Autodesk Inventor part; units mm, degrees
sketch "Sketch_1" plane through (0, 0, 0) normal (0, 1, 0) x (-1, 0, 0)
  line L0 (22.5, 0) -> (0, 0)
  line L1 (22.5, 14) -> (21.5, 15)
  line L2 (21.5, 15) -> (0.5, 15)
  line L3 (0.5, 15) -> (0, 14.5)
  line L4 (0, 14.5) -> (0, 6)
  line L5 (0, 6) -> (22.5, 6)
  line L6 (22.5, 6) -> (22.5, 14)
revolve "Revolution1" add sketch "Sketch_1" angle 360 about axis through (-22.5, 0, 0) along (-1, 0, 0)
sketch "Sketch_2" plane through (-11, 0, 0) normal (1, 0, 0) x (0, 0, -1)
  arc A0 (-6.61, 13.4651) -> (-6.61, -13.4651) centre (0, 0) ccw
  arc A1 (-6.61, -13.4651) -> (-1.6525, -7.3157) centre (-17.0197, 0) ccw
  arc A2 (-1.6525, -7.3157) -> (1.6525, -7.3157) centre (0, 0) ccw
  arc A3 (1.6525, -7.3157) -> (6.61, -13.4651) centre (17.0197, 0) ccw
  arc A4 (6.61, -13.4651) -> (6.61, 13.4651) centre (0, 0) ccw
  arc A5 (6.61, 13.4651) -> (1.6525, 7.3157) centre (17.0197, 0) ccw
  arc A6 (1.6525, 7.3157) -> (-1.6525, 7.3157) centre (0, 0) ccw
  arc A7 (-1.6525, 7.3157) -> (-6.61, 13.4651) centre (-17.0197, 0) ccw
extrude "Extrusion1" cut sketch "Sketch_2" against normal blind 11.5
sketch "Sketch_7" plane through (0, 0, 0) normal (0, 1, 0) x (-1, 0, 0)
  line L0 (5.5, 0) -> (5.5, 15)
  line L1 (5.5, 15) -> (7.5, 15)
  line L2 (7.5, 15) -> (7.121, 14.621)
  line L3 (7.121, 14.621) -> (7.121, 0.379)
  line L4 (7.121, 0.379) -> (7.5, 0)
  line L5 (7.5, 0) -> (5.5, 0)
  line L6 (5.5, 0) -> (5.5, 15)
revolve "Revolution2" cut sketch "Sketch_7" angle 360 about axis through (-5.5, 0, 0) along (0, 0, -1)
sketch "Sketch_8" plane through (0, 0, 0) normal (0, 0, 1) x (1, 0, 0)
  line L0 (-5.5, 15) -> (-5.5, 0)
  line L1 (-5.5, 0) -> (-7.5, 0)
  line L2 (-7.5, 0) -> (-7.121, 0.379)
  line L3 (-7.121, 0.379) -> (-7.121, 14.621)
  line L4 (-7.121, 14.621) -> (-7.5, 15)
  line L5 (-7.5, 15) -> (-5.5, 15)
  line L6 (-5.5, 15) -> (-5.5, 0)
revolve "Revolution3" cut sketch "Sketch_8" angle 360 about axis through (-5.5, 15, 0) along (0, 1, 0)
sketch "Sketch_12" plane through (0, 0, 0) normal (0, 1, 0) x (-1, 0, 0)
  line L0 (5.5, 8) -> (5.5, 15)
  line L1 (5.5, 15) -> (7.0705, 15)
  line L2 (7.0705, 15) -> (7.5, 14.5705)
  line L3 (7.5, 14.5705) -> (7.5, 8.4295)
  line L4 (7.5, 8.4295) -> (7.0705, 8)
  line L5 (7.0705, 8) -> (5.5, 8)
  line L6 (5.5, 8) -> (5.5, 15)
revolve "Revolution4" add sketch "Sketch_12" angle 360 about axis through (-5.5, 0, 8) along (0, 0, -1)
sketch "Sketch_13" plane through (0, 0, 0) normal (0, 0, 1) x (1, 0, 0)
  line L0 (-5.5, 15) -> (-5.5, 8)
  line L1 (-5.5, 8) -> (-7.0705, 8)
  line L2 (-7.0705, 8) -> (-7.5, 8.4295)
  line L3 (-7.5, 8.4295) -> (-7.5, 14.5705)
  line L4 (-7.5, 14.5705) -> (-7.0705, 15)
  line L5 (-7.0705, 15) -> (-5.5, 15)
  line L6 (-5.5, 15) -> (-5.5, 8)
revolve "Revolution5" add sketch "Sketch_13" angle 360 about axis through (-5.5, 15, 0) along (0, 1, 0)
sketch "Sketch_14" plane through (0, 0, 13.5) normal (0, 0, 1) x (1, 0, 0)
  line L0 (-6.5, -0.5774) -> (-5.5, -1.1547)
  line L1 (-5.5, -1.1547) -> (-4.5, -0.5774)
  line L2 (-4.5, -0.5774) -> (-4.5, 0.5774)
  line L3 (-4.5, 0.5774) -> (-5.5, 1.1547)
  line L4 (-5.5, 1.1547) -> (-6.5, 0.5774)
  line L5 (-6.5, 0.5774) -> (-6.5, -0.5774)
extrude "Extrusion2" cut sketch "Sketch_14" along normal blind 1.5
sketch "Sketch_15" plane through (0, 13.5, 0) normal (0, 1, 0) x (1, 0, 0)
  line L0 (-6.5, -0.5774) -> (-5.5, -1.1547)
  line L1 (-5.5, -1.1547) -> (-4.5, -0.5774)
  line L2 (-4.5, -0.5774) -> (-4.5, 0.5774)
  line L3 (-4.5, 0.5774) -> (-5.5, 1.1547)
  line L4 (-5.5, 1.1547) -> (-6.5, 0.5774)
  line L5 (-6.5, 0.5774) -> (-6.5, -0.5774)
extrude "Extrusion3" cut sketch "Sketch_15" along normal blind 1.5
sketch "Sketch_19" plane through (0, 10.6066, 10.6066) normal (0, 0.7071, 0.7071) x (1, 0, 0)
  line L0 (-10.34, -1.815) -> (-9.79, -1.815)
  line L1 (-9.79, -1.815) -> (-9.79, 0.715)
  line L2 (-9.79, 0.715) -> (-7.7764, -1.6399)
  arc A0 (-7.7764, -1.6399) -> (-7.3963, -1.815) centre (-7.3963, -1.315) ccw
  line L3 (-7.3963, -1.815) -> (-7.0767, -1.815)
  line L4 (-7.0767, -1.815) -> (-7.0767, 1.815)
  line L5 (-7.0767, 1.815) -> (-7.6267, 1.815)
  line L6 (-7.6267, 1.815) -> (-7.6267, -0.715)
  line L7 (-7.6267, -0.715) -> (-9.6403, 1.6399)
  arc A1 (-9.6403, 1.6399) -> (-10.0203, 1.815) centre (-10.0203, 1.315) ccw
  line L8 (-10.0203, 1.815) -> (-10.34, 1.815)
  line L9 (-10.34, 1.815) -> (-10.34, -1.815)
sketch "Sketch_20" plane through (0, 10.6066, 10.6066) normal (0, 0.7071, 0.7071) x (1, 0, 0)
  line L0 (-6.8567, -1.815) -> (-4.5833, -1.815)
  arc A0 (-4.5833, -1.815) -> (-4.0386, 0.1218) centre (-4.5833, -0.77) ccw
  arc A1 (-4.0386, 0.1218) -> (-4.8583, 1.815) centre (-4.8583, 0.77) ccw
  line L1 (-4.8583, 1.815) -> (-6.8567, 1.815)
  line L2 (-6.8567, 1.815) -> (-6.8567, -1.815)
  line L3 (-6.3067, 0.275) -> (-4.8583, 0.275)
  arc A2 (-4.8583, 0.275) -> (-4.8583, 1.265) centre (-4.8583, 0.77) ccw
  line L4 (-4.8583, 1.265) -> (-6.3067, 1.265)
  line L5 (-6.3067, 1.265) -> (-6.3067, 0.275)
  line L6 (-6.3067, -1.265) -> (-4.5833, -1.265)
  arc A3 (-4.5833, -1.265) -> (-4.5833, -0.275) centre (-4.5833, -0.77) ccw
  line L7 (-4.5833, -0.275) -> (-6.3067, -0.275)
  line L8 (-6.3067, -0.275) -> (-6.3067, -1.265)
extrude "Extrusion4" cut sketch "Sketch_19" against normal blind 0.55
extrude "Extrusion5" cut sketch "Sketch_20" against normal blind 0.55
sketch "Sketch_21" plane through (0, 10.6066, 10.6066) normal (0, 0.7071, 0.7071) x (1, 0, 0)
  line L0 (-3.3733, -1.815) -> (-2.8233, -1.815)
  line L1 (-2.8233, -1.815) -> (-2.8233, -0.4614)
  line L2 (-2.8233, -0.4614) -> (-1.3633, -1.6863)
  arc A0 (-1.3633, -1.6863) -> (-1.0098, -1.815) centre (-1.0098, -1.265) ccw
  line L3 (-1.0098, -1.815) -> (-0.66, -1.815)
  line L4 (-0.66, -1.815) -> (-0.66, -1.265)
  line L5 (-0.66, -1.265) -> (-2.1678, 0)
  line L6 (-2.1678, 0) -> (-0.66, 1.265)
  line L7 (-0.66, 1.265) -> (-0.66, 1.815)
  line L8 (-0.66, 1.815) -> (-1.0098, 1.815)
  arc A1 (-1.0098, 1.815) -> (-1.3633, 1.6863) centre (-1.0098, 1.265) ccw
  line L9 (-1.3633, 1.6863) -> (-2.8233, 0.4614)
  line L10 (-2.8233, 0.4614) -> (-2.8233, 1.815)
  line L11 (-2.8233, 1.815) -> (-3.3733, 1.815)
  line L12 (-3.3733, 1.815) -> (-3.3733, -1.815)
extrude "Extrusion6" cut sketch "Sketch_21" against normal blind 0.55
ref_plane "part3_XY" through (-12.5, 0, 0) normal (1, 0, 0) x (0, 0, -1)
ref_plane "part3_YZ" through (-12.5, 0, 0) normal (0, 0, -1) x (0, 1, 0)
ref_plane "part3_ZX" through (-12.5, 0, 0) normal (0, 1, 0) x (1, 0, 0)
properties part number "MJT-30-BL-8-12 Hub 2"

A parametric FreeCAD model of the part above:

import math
import FreeCAD as App
import Part
import Sketcher

V = App.Vector
Q = App.Units.Quantity


def add_polygon(sketch, points):
    """Adds a closed chain of lines whose ends are joined by coincident constraints."""
    first, n = sketch.GeometryCount, len(points)
    for a, b in zip(points, points[1:] + points[:1]):
        sketch.addGeometry(Part.LineSegment(App.Vector(*a, 0), App.Vector(*b, 0)), False)
    for i in range(n):
        sketch.addConstraint(Sketcher.Constraint("Coincident", first + i, 2, first + (i + 1) % n, 1))

doc = App.newDocument("Part")
body = doc.addObject("PartDesign::Body", "Body")

# Sketch on XZ plane
sketch1 = body.newObject("Sketcher::SketchObject", "Sketch")
sketch1.AttachmentSupport = (doc.getObject("XZ_Plane"), [""])
sketch1.MapMode = "FlatFace"
add_polygon(sketch1, [(-22.5, 6), (-22.5, 14), (-21.5, 15), (-0.5, 15), (0, 14.5), (0, 6)])  # lines 0-5
sketch1.addConstraint([
    Sketcher.Constraint("Vertical", 0),
    Sketcher.Constraint("Horizontal", 2),
    Sketcher.Constraint("Vertical", 4),
    Sketcher.Constraint("Horizontal", 5),
    Sketcher.Constraint("PointOnObject", 3, 2, -2),
    Sketcher.Constraint("Perpendicular", 1, 3),
    Sketcher.Constraint("DistanceX", 2, 1, 2, 2, 21.0),
    Sketcher.Constraint("DistanceY", 0, 1, 0, 2, 8.0),
    Sketcher.Constraint("Angle", 1, Q("45 deg")),
    Sketcher.Constraint("DistanceX", 5, 2, 5, 1, 22.5),
    Sketcher.Constraint("DistanceY", 4, 2, 4, 1, 8.5),
    Sketcher.Constraint("DistanceY", -1, 1, 0, 2, 14.0),
])
revolution = body.newObject("PartDesign::Revolution", "Revolution")
revolution.Profile = sketch1
revolution.ReferenceAxis = (sketch1, ["H_Axis"])
revolution.Angle = 360

# Sketch on YZ plane
sketch2 = body.newObject("Sketcher::SketchObject", "Sketch001")
sketch2.AttachmentSupport = (doc.getObject("YZ_Plane"), [""])
sketch2.MapMode = "FlatFace"
sketch2.AttachmentOffset = App.Placement(V(0, 0, -11), App.Rotation())
sketch2.addGeometry([
    Part.ArcOfCircle(Part.Circle(V(0, 17, 0), V(0, 0, 1), 17), math.radians(-65), math.radians(-38)),  # 0
    Part.ArcOfCircle(Part.Circle(V(0, 0, 0), V(0, 0, 1), 15), math.radians(26), math.radians(154)),  # 1
    Part.ArcOfCircle(Part.Circle(V(0, 17, 0), V(0, 0, 1), 17), math.radians(-142), math.radians(-115)),  # 2
    Part.ArcOfCircle(Part.Circle(V(0, 0, 0), V(0, 0, 1), 7.5), math.radians(167), math.radians(193)),  # 3
    Part.ArcOfCircle(Part.Circle(V(0, -17, 0), V(0, 0, 1), 17), math.radians(115), math.radians(142)),  # 4
    Part.ArcOfCircle(Part.Circle(V(0, 0, 0), V(0, 0, 1), 15), math.radians(-154), math.radians(-26)),  # 5
    Part.ArcOfCircle(Part.Circle(V(0, -17, 0), V(0, 0, 1), 17), math.radians(38), math.radians(65)),  # 6
    Part.ArcOfCircle(Part.Circle(V(0, 0, 0), V(0, 0, 1), 7.5), math.radians(-13), math.radians(13)),  # 7
], False)
sketch2.addConstraint([
    Sketcher.Constraint("Coincident", 0, 2, 1, 1),
    Sketcher.Constraint("Coincident", 1, 2, 2, 1),
    Sketcher.Constraint("Coincident", 2, 2, 3, 1),
    Sketcher.Constraint("Coincident", 3, 2, 4, 1),
    Sketcher.Constraint("Coincident", 4, 2, 5, 1),
    Sketcher.Constraint("Coincident", 5, 2, 6, 1),
    Sketcher.Constraint("Coincident", 6, 2, 7, 1),
    Sketcher.Constraint("Coincident", 7, 2, 0, 1),
    Sketcher.Constraint("Coincident", 1, 3, -1, 1),
    Sketcher.Constraint("Coincident", 3, 3, -1, 1),
    Sketcher.Constraint("Coincident", 5, 3, -1, 1),
    Sketcher.Constraint("Coincident", 7, 3, -1, 1),
    Sketcher.Constraint("Coincident", 2, 3, 0, 3),
    Sketcher.Constraint("Coincident", 6, 3, 4, 3),
    Sketcher.Constraint("Equal", 0, 2),
    Sketcher.Constraint("Equal", 2, 4),
    Sketcher.Constraint("Equal", 1, 5),
    Sketcher.Constraint("Equal", 4, 6),
    Sketcher.Constraint("Equal", 3, 7),
    Sketcher.Constraint("Symmetric", 0, 3, 4, 3, -1, 1),
    Sketcher.Constraint("PointOnObject", 0, 3, -2),
    Sketcher.Constraint("Radius", 1, 15.0),
    Sketcher.Constraint("Radius", 3, 7.5),
    Sketcher.Constraint("Radius", 0, 17.0197),
    Sketcher.Constraint("DistanceY", -1, 1, 0, 2, 6.61),
])
pocket1 = body.newObject("PartDesign::Pocket", "Pocket")
pocket1.Profile = sketch2
pocket1.Length = 11.5

# Sketch on XZ plane
sketch3 = body.newObject("Sketcher::SketchObject", "Sketch002")
sketch3.AttachmentSupport = (doc.getObject("XZ_Plane"), [""])
sketch3.MapMode = "FlatFace"
add_polygon(sketch3, [(-5.5, 15), (-5.5, 0), (-7.5, 0), (-7.1, 0.4), (-7.1, 14.6), (-7.5, 15)])  # lines 0-5
sketch3.addGeometry(Part.LineSegment(V(-5.5, 15, 0), V(-5.5, 0, 0)), True)  # axis
sketch3.addConstraint([
    Sketcher.Constraint("Vertical", 0),
    Sketcher.Constraint("Horizontal", 1),
    Sketcher.Constraint("Vertical", 3),
    Sketcher.Constraint("Horizontal", 5),
    Sketcher.Constraint("Vertical", 6),
    Sketcher.Constraint("Coincident", 6, 1, 5, 2),
    Sketcher.Constraint("PointOnObject", 0, 2, -1),
    Sketcher.Constraint("PointOnObject", 6, 2, -1),
    Sketcher.Constraint("Perpendicular", 2, 4),
    Sketcher.Constraint("Vertical", 1, 2, 4, 2),
    Sketcher.Constraint("Equal", 2, 4),
    Sketcher.Constraint("DistanceX", 1, 2, 1, 1, 2.0),
    Sketcher.Constraint("DistanceY", 0, 2, 0, 1, 15.0),
    Sketcher.Constraint("DistanceX", 0, 2, -1, 1, 5.5),
    Sketcher.Constraint("DistanceY", 3, 1, 3, 2, 14.242),
])
groove = body.newObject("PartDesign::Groove", "Groove")
groove.Profile = sketch3
groove.ReferenceAxis = (sketch3, ["Axis0"])
groove.Angle = 360

# Sketch on XY plane
sketch4 = body.newObject("Sketcher::SketchObject", "Sketch003")
sketch4.AttachmentSupport = (doc.getObject("XY_Plane"), [""])
sketch4.MapMode = "FlatFace"
add_polygon(sketch4, [(-5.5, 0), (-5.5, 15), (-7.5, 15), (-7.1, 14.6), (-7.1, 0.4), (-7.5, 0)])  # lines 0-5
sketch4.addGeometry(Part.LineSegment(V(-5.5, 0, 0), V(-5.5, 15, 0)), True)  # axis
sketch4.addConstraint([
    Sketcher.Constraint("Vertical", 0),
    Sketcher.Constraint("Horizontal", 1),
    Sketcher.Constraint("Vertical", 3),
    Sketcher.Constraint("Horizontal", 5),
    Sketcher.Constraint("Vertical", 6),
    Sketcher.Constraint("Coincident", 6, 1, 5, 2),
    Sketcher.Constraint("PointOnObject", 4, 2, -1),
    Sketcher.Constraint("Perpendicular", 2, 4),
    Sketcher.Constraint("Horizontal", 1, 2, 6, 2),
    Sketcher.Constraint("Vertical", 1, 2, 4, 2),
    Sketcher.Constraint("Equal", 2, 4),
    Sketcher.Constraint("DistanceX", 1, 2, 1, 1, 2.0),
    Sketcher.Constraint("DistanceY", 0, 1, 0, 2, 15.0),
    Sketcher.Constraint("DistanceX", 0, 2, -1, 1, 5.5),
    Sketcher.Constraint("DistanceY", 3, 2, 3, 1, 14.242),
])
groove2 = body.newObject("PartDesign::Groove", "Groove001")
groove2.Profile = sketch4
groove2.ReferenceAxis = (sketch4, ["Axis0"])
groove2.Angle = 360

# Sketch on XZ plane
sketch5 = body.newObject("Sketcher::SketchObject", "Sketch004")
sketch5.AttachmentSupport = (doc.getObject("XZ_Plane"), [""])
sketch5.MapMode = "FlatFace"
add_polygon(sketch5, [(-5.5, 15), (-5.5, 8), (-7.1, 8), (-7.5, 8.4), (-7.5, 14.6), (-7.1, 15)])  # lines 0-5
sketch5.addGeometry(Part.LineSegment(V(-5.5, 15, 0), V(-5.5, 8, 0)), True)  # axis
sketch5.addConstraint([
    Sketcher.Constraint("Vertical", 0),
    Sketcher.Constraint("Horizontal", 1),
    Sketcher.Constraint("Vertical", 3),
    Sketcher.Constraint("Horizontal", 5),
    Sketcher.Constraint("Vertical", 6),
    Sketcher.Constraint("Coincident", 6, 1, 5, 2),
    Sketcher.Constraint("Perpendicular", 2, 4),
    Sketcher.Constraint("Horizontal", 1, 2, 6, 2),
    Sketcher.Constraint("Vertical", 1, 2, 4, 2),
    Sketcher.Constraint("Equal", 2, 4),
    Sketcher.Constraint("DistanceY", 0, 2, 0, 1, 7.0),
    Sketcher.Constraint("DistanceY", -1, 1, 0, 2, 8.0),
    Sketcher.Constraint("DistanceX", 2, 2, 0, 2, 2.0),
    Sketcher.Constraint("DistanceX", 0, 2, -1, 1, 5.5),
    Sketcher.Constraint("DistanceY", 3, 1, 3, 2, 6.141),
])
revolution2 = body.newObject("PartDesign::Revolution", "Revolution001")
revolution2.Profile = sketch5
revolution2.ReferenceAxis = (sketch5, ["Axis0"])
revolution2.Angle = 360

# Sketch on XY plane
sketch6 = body.newObject("Sketcher::SketchObject", "Sketch005")
sketch6.AttachmentSupport = (doc.getObject("XY_Plane"), [""])
sketch6.MapMode = "FlatFace"
add_polygon(sketch6, [(-5.5, 8), (-5.5, 15), (-7.1, 15), (-7.5, 14.6), (-7.5, 8.4), (-7.1, 8)])  # lines 0-5
sketch6.addGeometry(Part.LineSegment(V(-5.5, 8, 0), V(-5.5, 15, 0)), True)  # axis
sketch6.addConstraint([
    Sketcher.Constraint("Vertical", 0),
    Sketcher.Constraint("Horizontal", 1),
    Sketcher.Constraint("Vertical", 3),
    Sketcher.Constraint("Horizontal", 5),
    Sketcher.Constraint("Vertical", 6),
    Sketcher.Constraint("Coincident", 6, 1, 5, 2),
    Sketcher.Constraint("Perpendicular", 2, 4),
    Sketcher.Constraint("Horizontal", 1, 2, 6, 2),
    Sketcher.Constraint("Vertical", 1, 2, 4, 2),
    Sketcher.Constraint("Equal", 2, 4),
    Sketcher.Constraint("DistanceY", 0, 1, 0, 2, 7.0),
    Sketcher.Constraint("DistanceY", -1, 1, 0, 2, 15.0),
    Sketcher.Constraint("DistanceX", 2, 2, 0, 2, 2.0),
    Sketcher.Constraint("DistanceX", 0, 2, -1, 1, 5.5),
    Sketcher.Constraint("DistanceY", 3, 2, 3, 1, 6.141),
])
revolution3 = body.newObject("PartDesign::Revolution", "Revolution002")
revolution3.Profile = sketch6
revolution3.ReferenceAxis = (sketch6, ["Axis0"])
revolution3.Angle = 360

# Sketch on XY plane
sketch7 = body.newObject("Sketcher::SketchObject", "Sketch006")
sketch7.AttachmentSupport = (doc.getObject("XY_Plane"), [""])
sketch7.MapMode = "FlatFace"
sketch7.AttachmentOffset = App.Placement(V(0, 0, 13.5), App.Rotation())
add_polygon(sketch7, [(-6.5, 0.6), (-6.5, -0.6), (-5.5, -1.2), (-4.5, -0.6), (-4.5, 0.6), (-5.5, 1.2)])  # lines 0-5
sketch7.addConstraint([
    Sketcher.Constraint("Vertical", 0),
    Sketcher.Constraint("Vertical", 3),
    Sketcher.Constraint("Symmetric", 1, 2, 4, 2, -1),
    Sketcher.Constraint("Parallel", 1, 4),
    Sketcher.Constraint("Parallel", 2, 5),
    Sketcher.Constraint("Horizontal", 0, 2, 2, 2),
    Sketcher.Constraint("Horizontal", 3, 2, 5, 2),
    Sketcher.Constraint("DistanceX", 0, 2, 1, 2, 1.0),
    Sketcher.Constraint("DistanceX", 0, 2, -1, 1, 6.5),
    Sketcher.Constraint("DistanceY", 0, 2, 0, 1, 1.1548),
    Sketcher.Constraint("DistanceY", 1, 2, 3, 2, 1.732),
])
pocket2 = body.newObject("PartDesign::Pocket", "Pocket001")
pocket2.Profile = sketch7
pocket2.Length = 1.5
pocket2.Reversed = True

# Sketch on XZ plane
sketch8 = body.newObject("Sketcher::SketchObject", "Sketch007")
sketch8.AttachmentSupport = (doc.getObject("XZ_Plane"), [""])
sketch8.MapMode = "FlatFace"
sketch8.AttachmentOffset = App.Placement(V(0, 0, -13.5), App.Rotation())
add_polygon(sketch8, [(-6.5, -0.6), (-6.5, 0.6), (-5.5, 1.2), (-4.5, 0.6), (-4.5, -0.6), (-5.5, -1.2)])  # lines 0-5
sketch8.addConstraint([
    Sketcher.Constraint("Vertical", 0),
    Sketcher.Constraint("Vertical", 3),
    Sketcher.Constraint("Symmetric", 1, 2, 4, 2, -1),
    Sketcher.Constraint("Parallel", 1, 4),
    Sketcher.Constraint("Parallel", 2, 5),
    Sketcher.Constraint("Horizontal", 0, 2, 2, 2),
    Sketcher.Constraint("Horizontal", 3, 2, 5, 2),
    Sketcher.Constraint("DistanceX", 0, 2, 1, 2, 1.0),
    Sketcher.Constraint("DistanceX", 0, 2, -1, 1, 6.5),
    Sketcher.Constraint("DistanceY", 0, 1, 0, 2, 1.1548),
    Sketcher.Constraint("DistanceY", 3, 2, 1, 2, 1.732),
])
pocket3 = body.newObject("PartDesign::Pocket", "Pocket002")
pocket3.Profile = sketch8
pocket3.Length = 1.5

# Sketch on an angled plane
sketch9 = body.newObject("Sketcher::SketchObject", "Sketch008")
sketch9.Placement = App.Placement(V(0, 10.6066, 10.6066), App.Rotation(V(1, 0, 0), V(0, 0.707106781, -0.707106781), V(0, 0.707106781, 0.707106781), "ZXY"))
sketch9.addGeometry([
    Part.LineSegment(V(-10.34, 1.81, 0), V(-10.34, -1.81, 0)),  # 0
    Part.LineSegment(V(-10.34, -1.81, 0), V(-9.79, -1.81, 0)),  # 1
    Part.LineSegment(V(-9.79, -1.81, 0), V(-9.79, 0.71, 0)),  # 2
    Part.LineSegment(V(-9.79, 0.71, 0), V(-7.78, -1.64, 0)),  # 3
    Part.ArcOfCircle(Part.Circle(V(-7.4, -1.31, 0), V(0, 0, 1), 0.5), math.radians(-139), math.radians(-90)),  # 4
    Part.LineSegment(V(-7.4, -1.81, 0), V(-7.08, -1.81, 0)),  # 5
    Part.LineSegment(V(-7.08, -1.81, 0), V(-7.08, 1.81, 0)),  # 6
    Part.LineSegment(V(-7.08, 1.81, 0), V(-7.63, 1.81, 0)),  # 7
    Part.LineSegment(V(-7.63, 1.81, 0), V(-7.63, -0.71, 0)),  # 8
    Part.LineSegment(V(-7.63, -0.71, 0), V(-9.64, 1.64, 0)),  # 9
    Part.ArcOfCircle(Part.Circle(V(-10.02, 1.31, 0), V(0, 0, 1), 0.5), math.radians(41), math.radians(90)),  # 10
    Part.LineSegment(V(-10.02, 1.81, 0), V(-10.34, 1.81, 0)),  # 11
], False)
sketch9.addConstraint([
    Sketcher.Constraint("Coincident", 0, 2, 1, 1),
    Sketcher.Constraint("Coincident", 1, 2, 2, 1),
    Sketcher.Constraint("Coincident", 2, 2, 3, 1),
    Sketcher.Constraint("Tangent", 3, 2, 4, 1),
    Sketcher.Constraint("Tangent", 4, 2, 5, 1),
    Sketcher.Constraint("Coincident", 5, 2, 6, 1),
    Sketcher.Constraint("Coincident", 6, 2, 7, 1),
    Sketcher.Constraint("Coincident", 7, 2, 8, 1),
    Sketcher.Constraint("Coincident", 8, 2, 9, 1),
    Sketcher.Constraint("Tangent", 9, 2, 10, 1),
    Sketcher.Constraint("Tangent", 10, 2, 11, 1),
    Sketcher.Constraint("Coincident", 11, 2, 0, 1),
    Sketcher.Constraint("Vertical", 0),
    Sketcher.Constraint("Horizontal", 1),
    Sketcher.Constraint("Vertical", 2),
    Sketcher.Constraint("Horizontal", 5),
    Sketcher.Constraint("Vertical", 6),
    Sketcher.Constraint("Horizontal", 7),
    Sketcher.Constraint("Vertical", 8),
    Sketcher.Constraint("Horizontal", 11),
    Sketcher.Constraint("Equal", 4, 10),
    Sketcher.Constraint("Parallel", 3, 9),
    Sketcher.Constraint("Horizontal", 1, 2, 4, 2),
    Sketcher.Constraint("Horizontal", 7, 2, 10, 2),
    Sketcher.Constraint("Equal", 1, 7),
    Sketcher.Constraint("Equal", 5, 11),
    Sketcher.Constraint("Radius", 4, 0.5),
    Sketcher.Constraint("DistanceX", 1, 1, 1, 2, 0.55),
    Sketcher.Constraint("DistanceY", 0, 2, 0, 1, 3.63),
    Sketcher.Constraint("DistanceY", 2, 1, 2, 2, 2.53),
    Sketcher.Constraint("DistanceX", 0, 2, -1, 1, 10.34),
    Sketcher.Constraint("DistanceY", 3, 2, -1, 1, 1.64),
    Sketcher.Constraint("DistanceY", -1, 1, 9, 2, 1.64),
    Sketcher.Constraint("DistanceX", 5, 1, 5, 2, 0.3196),
])
pocket4 = body.newObject("PartDesign::Pocket", "Pocket003")
pocket4.Profile = sketch9
pocket4.Length = 0.55

# Sketch on an angled plane
sketch10 = body.newObject("Sketcher::SketchObject", "Sketch009")
sketch10.Placement = App.Placement(V(0, 10.6066, 10.6066), App.Rotation(V(1, 0, 0), V(0, 0.707106781, -0.707106781), V(0, 0.707106781, 0.707106781), "ZXY"))
sketch10.addGeometry([
    Part.LineSegment(V(-6.86, 1.81, 0), V(-6.86, -1.81, 0)),  # 0
    Part.LineSegment(V(-6.86, -1.81, 0), V(-4.58, -1.81, 0)),  # 1
    Part.ArcOfCircle(Part.Circle(V(-4.58, -0.77, 0), V(0, 0, 1), 1.04), math.radians(-90), math.radians(59)),  # 2
    Part.ArcOfCircle(Part.Circle(V(-4.86, 0.77, 0), V(0, 0, 1), 1.05), math.radians(-38), math.radians(90)),  # 3
    Part.LineSegment(V(-4.86, 1.81, 0), V(-6.86, 1.81, 0)),  # 4
    Part.LineSegment(V(-4.58, -1.26, 0), V(-6.31, -1.26, 0)),  # 5
    Part.LineSegment(V(-6.31, -1.26, 0), V(-6.31, -0.28, 0)),  # 6
    Part.LineSegment(V(-6.31, -0.28, 0), V(-4.58, -0.28, 0)),  # 7
    Part.ArcOfCircle(Part.Circle(V(-4.58, -0.77, 0), V(0, 0, 1), 0.49), math.radians(-90), math.radians(90)),  # 8
    Part.LineSegment(V(-4.86, 0.28, 0), V(-6.31, 0.28, 0)),  # 9
    Part.LineSegment(V(-6.31, 0.28, 0), V(-6.31, 1.26, 0)),  # 10
    Part.LineSegment(V(-6.31, 1.26, 0), V(-4.86, 1.26, 0)),  # 11
    Part.ArcOfCircle(Part.Circle(V(-4.86, 0.77, 0), V(0, 0, 1), 0.49), math.radians(-90), math.radians(90)),  # 12
], False)
sketch10.addConstraint([
    Sketcher.Constraint("Coincident", 0, 2, 1, 1),
    Sketcher.Constraint("Tangent", 1, 2, 2, 1),
    Sketcher.Constraint("Coincident", 2, 2, 3, 1),
    Sketcher.Constraint("Tangent", 3, 2, 4, 1),
    Sketcher.Constraint("Coincident", 4, 2, 0, 1),
    Sketcher.Constraint("Coincident", 5, 2, 6, 1),
    Sketcher.Constraint("Coincident", 6, 2, 7, 1),
    Sketcher.Constraint("Tangent", 7, 2, 8, 2),
    Sketcher.Constraint("Tangent", 8, 1, 5, 1),
    Sketcher.Constraint("Coincident", 9, 2, 10, 1),
    Sketcher.Constraint("Coincident", 10, 2, 11, 1),
    Sketcher.Constraint("Tangent", 11, 2, 12, 2),
    Sketcher.Constraint("Tangent", 12, 1, 9, 1),
    Sketcher.Constraint("Vertical", 0),
    Sketcher.Constraint("Horizontal", 1),
    Sketcher.Constraint("Horizontal", 4),
    Sketcher.Constraint("Horizontal", 5),
    Sketcher.Constraint("Vertical", 6),
    Sketcher.Constraint("Horizontal", 7),
    Sketcher.Constraint("Horizontal", 9),
    Sketcher.Constraint("Vertical", 10),
    Sketcher.Constraint("Horizontal", 11),
    Sketcher.Constraint("Coincident", 8, 3, 2, 3),
    Sketcher.Constraint("Coincident", 12, 3, 3, 3),
    Sketcher.Constraint("Equal", 2, 3),
    Sketcher.Constraint("Equal", 8, 12),
    Sketcher.Constraint("Symmetric", 6, 2, 9, 2, -1),
    Sketcher.Constraint("Radius", 2, 1.045),
    Sketcher.Constraint("Radius", 8, 0.495),
    Sketcher.Constraint("DistanceY", 0, 2, 0, 1, 3.63),
    Sketcher.Constraint("DistanceX", 0, 2, 5, 2, 0.55),
    Sketcher.Constraint("DistanceX", 1, 1, 1, 2, 2.2734),
    Sketcher.Constraint("DistanceX", 4, 2, 4, 1, 1.9984),
    Sketcher.Constraint("DistanceX", 2, 3, -1, 1, 4.5833),
])
pocket5 = body.newObject("PartDesign::Pocket", "Pocket004")
pocket5.Profile = sketch10
pocket5.Length = 0.55

# Sketch on an angled plane
sketch11 = body.newObject("Sketcher::SketchObject", "Sketch010")
sketch11.Placement = App.Placement(V(0, 10.6066, 10.6066), App.Rotation(V(1, 0, 0), V(0, 0.707106781, -0.707106781), V(0, 0.707106781, 0.707106781), "ZXY"))
sketch11.addGeometry([
    Part.LineSegment(V(-3.37, 1.81, 0), V(-3.37, -1.81, 0)),  # 0
    Part.LineSegment(V(-3.37, -1.81, 0), V(-2.82, -1.81, 0)),  # 1
    Part.LineSegment(V(-2.82, -1.81, 0), V(-2.82, -0.46, 0)),  # 2
    Part.LineSegment(V(-2.82, -0.46, 0), V(-1.36, -1.69, 0)),  # 3
    Part.ArcOfCircle(Part.Circle(V(-1.01, -1.26, 0), V(0, 0, 1), 0.55), math.radians(-130), math.radians(-90)),  # 4
    Part.LineSegment(V(-1.01, -1.81, 0), V(-0.66, -1.81, 0)),  # 5
    Part.LineSegment(V(-0.66, -1.81, 0), V(-0.66, -1.26, 0)),  # 6
    Part.LineSegment(V(-0.66, -1.26, 0), V(-2.17, 0, 0)),  # 7
    Part.LineSegment(V(-2.17, 0, 0), V(-0.66, 1.26, 0)),  # 8
    Part.LineSegment(V(-0.66, 1.26, 0), V(-0.66, 1.81, 0)),  # 9
    Part.LineSegment(V(-0.66, 1.81, 0), V(-1.01, 1.81, 0)),  # 10
    Part.ArcOfCircle(Part.Circle(V(-1.01, 1.26, 0), V(0, 0, 1), 0.55), math.radians(90), math.radians(130)),  # 11
    Part.LineSegment(V(-1.36, 1.69, 0), V(-2.82, 0.46, 0)),  # 12
    Part.LineSegment(V(-2.82, 0.46, 0), V(-2.82, 1.81, 0)),  # 13
    Part.LineSegment(V(-2.82, 1.81, 0), V(-3.37, 1.81, 0)),  # 14
], False)
sketch11.addConstraint([
    Sketcher.Constraint("Coincident", 0, 2, 1, 1),
    Sketcher.Constraint("Coincident", 1, 2, 2, 1),
    Sketcher.Constraint("Coincident", 2, 2, 3, 1),
    Sketcher.Constraint("Tangent", 3, 2, 4, 1),
    Sketcher.Constraint("Tangent", 4, 2, 5, 1),
    Sketcher.Constraint("Coincident", 5, 2, 6, 1),
    Sketcher.Constraint("Coincident", 6, 2, 7, 1),
    Sketcher.Constraint("Coincident", 7, 2, 8, 1),
    Sketcher.Constraint("Coincident", 8, 2, 9, 1),
    Sketcher.Constraint("Coincident", 9, 2, 10, 1),
    Sketcher.Constraint("Tangent", 10, 2, 11, 1),
    Sketcher.Constraint("Tangent", 11, 2, 12, 1),
    Sketcher.Constraint("Coincident", 12, 2, 13, 1),
    Sketcher.Constraint("Coincident", 13, 2, 14, 1),
    Sketcher.Constraint("Coincident", 14, 2, 0, 1),
    Sketcher.Constraint("Vertical", 0),
    Sketcher.Constraint("Horizontal", 1),
    Sketcher.Constraint("Vertical", 2),
    Sketcher.Constraint("Horizontal", 5),
    Sketcher.Constraint("Vertical", 6),
    Sketcher.Constraint("Vertical", 9),
    Sketcher.Constraint("Horizontal", 10),
    Sketcher.Constraint("Vertical", 13),
    Sketcher.Constraint("Horizontal", 14),
    Sketcher.Constraint("Equal", 4, 11),
    Sketcher.Constraint("Symmetric", 4, 3, 11, 3, -1),
    Sketcher.Constraint("Symmetric", 6, 2, 8, 2, -1),
    Sketcher.Constraint("Symmetric", 2, 2, 12, 2, -1),
    Sketcher.Constraint("PointOnObject", 7, 2, -1),
    Sketcher.Constraint("Parallel", 3, 7),
    Sketcher.Constraint("Horizontal", 1, 2, 4, 2),
    Sketcher.Constraint("Horizontal", 4, 3, 6, 2),
    Sketcher.Constraint("Horizontal", 10, 2, 13, 2),
    Sketcher.Constraint("Equal", 14, 6),
    Sketcher.Constraint("Radius", 4, 0.55),
    Sketcher.Constraint("DistanceY", 0, 2, 0, 1, 3.63),
    Sketcher.Constraint("DistanceX", 5, 2, -1, 1, 0.66),
    Sketcher.Constraint("DistanceX", 1, 2, 3, 2, 1.46),
    Sketcher.Constraint("DistanceX", 5, 1, 5, 2, 0.3498),
    Sketcher.Constraint("DistanceY", 2, 1, 2, 2, 1.3536),
])
pocket6 = body.newObject("PartDesign::Pocket", "Pocket005")
pocket6.Profile = sketch11
pocket6.Length = 0.55

doc.recompute()
